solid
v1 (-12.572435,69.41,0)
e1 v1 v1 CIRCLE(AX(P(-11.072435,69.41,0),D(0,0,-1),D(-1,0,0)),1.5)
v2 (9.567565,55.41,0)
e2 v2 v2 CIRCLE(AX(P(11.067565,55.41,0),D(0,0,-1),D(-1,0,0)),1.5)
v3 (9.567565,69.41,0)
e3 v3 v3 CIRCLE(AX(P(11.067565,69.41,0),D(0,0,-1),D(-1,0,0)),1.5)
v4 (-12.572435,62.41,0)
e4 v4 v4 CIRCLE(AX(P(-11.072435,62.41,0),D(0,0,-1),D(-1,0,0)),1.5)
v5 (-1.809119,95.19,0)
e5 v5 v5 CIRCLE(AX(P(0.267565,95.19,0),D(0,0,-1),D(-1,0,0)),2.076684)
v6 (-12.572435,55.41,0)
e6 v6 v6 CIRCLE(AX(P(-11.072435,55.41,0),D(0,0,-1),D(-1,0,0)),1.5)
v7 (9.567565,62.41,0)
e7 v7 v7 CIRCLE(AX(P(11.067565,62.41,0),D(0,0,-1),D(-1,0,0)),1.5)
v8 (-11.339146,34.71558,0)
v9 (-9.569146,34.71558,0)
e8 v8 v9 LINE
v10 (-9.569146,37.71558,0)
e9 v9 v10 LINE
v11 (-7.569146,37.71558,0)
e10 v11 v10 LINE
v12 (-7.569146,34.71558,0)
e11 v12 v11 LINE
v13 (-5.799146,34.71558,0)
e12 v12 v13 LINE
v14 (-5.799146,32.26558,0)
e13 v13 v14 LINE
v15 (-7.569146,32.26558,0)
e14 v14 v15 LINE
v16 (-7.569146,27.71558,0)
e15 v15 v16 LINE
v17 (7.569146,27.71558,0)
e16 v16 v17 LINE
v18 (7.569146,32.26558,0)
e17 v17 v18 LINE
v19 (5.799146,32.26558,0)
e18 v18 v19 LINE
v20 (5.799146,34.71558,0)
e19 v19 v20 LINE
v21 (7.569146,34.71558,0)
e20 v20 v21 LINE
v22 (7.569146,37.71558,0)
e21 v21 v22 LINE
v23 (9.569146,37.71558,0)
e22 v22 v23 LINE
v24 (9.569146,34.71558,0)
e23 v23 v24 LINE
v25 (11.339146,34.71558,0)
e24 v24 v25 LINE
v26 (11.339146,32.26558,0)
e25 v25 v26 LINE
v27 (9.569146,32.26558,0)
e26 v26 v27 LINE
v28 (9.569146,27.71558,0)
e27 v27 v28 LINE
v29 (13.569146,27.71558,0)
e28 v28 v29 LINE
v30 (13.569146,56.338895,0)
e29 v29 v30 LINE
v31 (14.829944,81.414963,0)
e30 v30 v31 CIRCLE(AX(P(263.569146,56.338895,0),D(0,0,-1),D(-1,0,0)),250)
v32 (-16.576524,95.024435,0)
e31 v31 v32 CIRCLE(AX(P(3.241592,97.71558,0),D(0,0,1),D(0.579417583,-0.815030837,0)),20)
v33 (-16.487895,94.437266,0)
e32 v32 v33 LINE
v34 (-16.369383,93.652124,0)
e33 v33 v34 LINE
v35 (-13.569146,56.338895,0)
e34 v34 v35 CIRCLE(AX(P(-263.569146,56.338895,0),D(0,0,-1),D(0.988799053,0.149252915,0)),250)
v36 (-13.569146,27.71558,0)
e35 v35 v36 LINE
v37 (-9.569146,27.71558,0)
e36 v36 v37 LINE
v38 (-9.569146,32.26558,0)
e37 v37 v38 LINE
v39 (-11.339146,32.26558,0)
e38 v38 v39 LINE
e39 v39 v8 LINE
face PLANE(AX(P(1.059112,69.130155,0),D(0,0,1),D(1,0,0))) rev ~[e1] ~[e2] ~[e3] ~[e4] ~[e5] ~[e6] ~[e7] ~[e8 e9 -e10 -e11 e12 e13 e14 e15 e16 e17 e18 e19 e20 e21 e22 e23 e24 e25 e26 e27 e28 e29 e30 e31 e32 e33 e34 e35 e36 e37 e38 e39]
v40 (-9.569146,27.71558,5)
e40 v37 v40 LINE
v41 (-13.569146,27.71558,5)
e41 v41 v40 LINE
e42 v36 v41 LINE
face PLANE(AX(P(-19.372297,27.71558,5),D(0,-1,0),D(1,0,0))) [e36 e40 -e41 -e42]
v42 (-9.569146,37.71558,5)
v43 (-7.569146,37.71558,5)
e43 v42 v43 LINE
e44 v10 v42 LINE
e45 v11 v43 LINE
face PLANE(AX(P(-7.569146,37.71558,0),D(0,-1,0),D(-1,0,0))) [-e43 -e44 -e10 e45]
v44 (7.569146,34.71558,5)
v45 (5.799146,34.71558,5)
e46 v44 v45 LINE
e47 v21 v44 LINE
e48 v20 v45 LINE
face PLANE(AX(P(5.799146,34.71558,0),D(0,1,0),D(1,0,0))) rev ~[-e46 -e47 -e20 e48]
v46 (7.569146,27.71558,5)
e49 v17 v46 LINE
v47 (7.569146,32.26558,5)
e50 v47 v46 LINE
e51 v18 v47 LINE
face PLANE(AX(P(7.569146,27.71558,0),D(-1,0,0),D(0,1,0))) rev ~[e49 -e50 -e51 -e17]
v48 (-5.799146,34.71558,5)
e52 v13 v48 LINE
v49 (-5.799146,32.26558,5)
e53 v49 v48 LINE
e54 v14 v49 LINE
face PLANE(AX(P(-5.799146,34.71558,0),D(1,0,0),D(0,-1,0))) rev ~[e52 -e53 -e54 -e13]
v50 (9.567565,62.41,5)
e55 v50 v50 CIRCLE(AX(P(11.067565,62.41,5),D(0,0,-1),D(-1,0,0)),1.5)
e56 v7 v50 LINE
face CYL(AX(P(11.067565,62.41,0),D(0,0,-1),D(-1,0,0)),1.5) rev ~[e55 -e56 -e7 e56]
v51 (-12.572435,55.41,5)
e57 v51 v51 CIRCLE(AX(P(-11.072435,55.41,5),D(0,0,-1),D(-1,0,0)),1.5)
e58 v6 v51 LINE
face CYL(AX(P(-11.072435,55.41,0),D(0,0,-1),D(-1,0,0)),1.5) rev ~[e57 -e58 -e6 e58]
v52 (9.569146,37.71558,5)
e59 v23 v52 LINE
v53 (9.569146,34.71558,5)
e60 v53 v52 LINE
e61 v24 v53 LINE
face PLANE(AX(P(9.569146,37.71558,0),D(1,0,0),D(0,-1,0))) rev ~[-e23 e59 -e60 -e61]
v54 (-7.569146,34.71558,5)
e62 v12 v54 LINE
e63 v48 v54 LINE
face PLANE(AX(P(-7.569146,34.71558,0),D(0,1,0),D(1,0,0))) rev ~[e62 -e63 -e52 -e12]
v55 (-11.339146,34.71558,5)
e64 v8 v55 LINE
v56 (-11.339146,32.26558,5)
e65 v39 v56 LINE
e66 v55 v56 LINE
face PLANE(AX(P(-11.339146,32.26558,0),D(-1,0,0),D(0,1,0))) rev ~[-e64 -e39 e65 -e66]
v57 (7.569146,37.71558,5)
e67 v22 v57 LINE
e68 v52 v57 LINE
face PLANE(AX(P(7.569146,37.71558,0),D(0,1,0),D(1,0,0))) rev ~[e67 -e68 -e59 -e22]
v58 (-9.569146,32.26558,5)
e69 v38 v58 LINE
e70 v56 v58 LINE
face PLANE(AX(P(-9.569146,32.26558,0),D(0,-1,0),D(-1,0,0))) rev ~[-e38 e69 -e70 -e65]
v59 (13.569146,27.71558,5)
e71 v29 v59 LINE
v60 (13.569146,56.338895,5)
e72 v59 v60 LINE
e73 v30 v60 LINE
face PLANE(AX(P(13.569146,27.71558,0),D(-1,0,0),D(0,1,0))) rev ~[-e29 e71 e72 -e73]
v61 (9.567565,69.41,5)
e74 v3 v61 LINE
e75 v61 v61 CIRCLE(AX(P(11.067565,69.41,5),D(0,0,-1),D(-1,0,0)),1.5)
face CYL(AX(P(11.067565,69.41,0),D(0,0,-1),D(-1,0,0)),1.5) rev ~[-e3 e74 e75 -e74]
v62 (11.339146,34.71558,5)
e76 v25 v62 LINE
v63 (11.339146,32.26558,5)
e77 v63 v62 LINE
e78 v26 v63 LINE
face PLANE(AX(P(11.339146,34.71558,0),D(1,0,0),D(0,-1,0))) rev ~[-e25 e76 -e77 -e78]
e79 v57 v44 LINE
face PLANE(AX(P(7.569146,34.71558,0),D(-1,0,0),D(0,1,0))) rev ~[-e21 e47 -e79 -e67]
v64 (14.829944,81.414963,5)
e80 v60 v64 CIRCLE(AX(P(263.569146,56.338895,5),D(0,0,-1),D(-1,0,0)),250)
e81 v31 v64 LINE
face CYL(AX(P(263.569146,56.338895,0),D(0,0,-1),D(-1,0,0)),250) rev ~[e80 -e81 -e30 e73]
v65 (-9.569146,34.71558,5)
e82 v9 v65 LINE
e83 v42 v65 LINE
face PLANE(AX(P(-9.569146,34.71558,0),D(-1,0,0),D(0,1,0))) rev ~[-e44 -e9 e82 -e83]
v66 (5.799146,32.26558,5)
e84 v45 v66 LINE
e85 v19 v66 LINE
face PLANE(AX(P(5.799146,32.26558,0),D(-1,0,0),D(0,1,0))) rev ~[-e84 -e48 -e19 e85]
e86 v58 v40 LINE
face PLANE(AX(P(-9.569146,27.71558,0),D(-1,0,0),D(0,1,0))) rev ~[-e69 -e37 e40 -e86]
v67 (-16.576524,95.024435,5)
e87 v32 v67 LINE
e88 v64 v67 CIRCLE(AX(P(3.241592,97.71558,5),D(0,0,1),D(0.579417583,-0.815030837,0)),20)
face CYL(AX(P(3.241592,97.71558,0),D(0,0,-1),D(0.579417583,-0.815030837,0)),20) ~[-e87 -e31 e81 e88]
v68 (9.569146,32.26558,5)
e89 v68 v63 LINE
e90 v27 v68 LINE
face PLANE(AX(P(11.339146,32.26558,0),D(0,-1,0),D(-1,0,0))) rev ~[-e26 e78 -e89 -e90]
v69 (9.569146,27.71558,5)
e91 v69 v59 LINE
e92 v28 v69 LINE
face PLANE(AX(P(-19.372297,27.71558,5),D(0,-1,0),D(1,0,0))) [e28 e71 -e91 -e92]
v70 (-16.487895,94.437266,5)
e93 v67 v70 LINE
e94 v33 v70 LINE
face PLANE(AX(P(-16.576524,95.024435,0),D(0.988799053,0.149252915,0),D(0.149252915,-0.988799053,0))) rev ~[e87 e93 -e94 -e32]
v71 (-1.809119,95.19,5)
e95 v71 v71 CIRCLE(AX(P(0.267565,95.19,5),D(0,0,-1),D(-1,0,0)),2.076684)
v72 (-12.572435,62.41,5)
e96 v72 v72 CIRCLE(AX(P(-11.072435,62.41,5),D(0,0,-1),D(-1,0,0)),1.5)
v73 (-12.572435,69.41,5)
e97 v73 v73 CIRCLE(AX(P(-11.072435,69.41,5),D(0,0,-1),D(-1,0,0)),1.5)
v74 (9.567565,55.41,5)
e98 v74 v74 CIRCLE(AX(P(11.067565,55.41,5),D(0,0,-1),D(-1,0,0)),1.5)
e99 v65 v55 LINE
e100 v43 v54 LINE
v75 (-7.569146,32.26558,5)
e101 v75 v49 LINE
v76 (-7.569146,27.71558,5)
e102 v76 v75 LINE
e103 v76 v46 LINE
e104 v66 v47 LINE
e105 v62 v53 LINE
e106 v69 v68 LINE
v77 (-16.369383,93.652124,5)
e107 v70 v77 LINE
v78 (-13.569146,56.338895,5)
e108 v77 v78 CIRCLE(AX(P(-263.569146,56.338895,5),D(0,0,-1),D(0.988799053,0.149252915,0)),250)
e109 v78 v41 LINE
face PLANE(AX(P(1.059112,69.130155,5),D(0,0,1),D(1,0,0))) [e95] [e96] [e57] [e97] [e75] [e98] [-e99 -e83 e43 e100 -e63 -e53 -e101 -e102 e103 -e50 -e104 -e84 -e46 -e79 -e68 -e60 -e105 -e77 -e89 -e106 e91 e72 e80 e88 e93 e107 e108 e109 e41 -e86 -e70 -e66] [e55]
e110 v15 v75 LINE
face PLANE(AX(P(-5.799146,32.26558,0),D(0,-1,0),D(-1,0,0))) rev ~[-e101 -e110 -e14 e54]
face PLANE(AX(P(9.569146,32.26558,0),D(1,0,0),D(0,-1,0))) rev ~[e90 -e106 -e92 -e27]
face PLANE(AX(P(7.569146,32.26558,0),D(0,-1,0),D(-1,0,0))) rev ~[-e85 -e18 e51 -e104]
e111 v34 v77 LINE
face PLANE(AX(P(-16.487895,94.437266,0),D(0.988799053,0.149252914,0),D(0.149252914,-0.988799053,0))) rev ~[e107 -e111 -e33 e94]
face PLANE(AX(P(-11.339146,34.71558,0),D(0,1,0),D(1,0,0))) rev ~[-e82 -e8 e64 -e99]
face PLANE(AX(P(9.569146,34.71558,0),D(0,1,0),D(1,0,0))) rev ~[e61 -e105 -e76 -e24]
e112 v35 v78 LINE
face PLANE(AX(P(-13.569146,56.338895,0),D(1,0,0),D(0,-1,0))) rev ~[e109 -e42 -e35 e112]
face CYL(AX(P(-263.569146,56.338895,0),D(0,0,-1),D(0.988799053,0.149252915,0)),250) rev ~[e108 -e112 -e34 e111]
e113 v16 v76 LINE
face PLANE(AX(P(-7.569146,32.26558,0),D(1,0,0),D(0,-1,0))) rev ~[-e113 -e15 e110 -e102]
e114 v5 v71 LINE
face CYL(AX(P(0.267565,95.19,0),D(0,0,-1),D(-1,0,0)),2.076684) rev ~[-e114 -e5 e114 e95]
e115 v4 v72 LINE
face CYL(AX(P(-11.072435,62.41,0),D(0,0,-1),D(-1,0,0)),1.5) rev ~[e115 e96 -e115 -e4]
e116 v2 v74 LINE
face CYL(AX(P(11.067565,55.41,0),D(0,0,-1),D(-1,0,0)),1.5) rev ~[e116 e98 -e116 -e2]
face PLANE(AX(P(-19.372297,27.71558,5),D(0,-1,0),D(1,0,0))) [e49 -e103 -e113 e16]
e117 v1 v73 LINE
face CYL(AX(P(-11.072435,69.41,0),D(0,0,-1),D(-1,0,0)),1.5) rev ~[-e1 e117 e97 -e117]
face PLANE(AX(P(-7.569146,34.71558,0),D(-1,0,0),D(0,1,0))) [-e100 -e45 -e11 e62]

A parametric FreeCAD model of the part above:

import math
import FreeCAD as App
import Part
import Sketcher

V = App.Vector

doc = App.newDocument("Part")
body = doc.addObject("PartDesign::Body", "Body")

# Sketch on XY plane
sketch1 = doc.addObject("Sketcher::SketchObject", "Sketch")
body.addObject(sketch1)
sketch1.AttachmentSupport = (doc.XY_Plane, [""])
sketch1.MapMode = "FlatFace"
sketch1.addGeometry([
    Part.LineSegment(V(13.569146, 27.71558, 0), V(13.569146, 56.338895, 0)),  # 0
    Part.ArcOfCircle(Part.Circle(V(263.569146, 56.338895, 0), V(0, 0, 1), 250), math.radians(174.243308), math.radians(180)),  # 1
    Part.ArcOfCircle(Part.Circle(V(3.241592, 97.71558, 0), V(0, 0, 1), 20), math.radians(-54.590411), math.radians(187.733017)),  # 2
    Part.LineSegment(V(-16.576524, 95.024435, 0), V(-16.487895, 94.437266, 0)),  # 3
    Part.LineSegment(V(-16.487895, 94.437266, 0), V(-16.369383, 93.652124, 0)),  # 4
    Part.ArcOfCircle(Part.Circle(V(-263.569146, 56.338895, 0), V(0, 0, 1), 250), math.radians(0), math.radians(8.583634)),  # 5
    Part.LineSegment(V(-13.569146, 56.338895, 0), V(-13.569146, 27.71558, 0)),  # 6
    Part.ArcOfCircle(Part.Circle(V(0, 38.134763, 0), V(0, 0, 1), 17.107925), math.radians(-142.48084), math.radians(-37.51916)),  # 7
], False)
sketch1.addConstraint([
    Sketcher.Constraint("Coincident", 0, 2, 1, 2),
    Sketcher.Constraint("Coincident", 1, 1, 2, 1),
    Sketcher.Constraint("Coincident", 2, 2, 3, 1),
    Sketcher.Constraint("Coincident", 3, 2, 4, 1),
    Sketcher.Constraint("Coincident", 4, 2, 5, 2),
    Sketcher.Constraint("Coincident", 5, 1, 6, 1),
    Sketcher.Constraint("Coincident", 6, 2, 7, 1),
    Sketcher.Constraint("Coincident", 7, 2, 0, 1),
    Sketcher.Constraint("Vertical", 0),
    Sketcher.Constraint("Vertical", 6),
    Sketcher.Constraint("PointOnObject", 7, 3, -2),
    Sketcher.Constraint("Radius", 1, 250.0),
    Sketcher.Constraint("Radius", 2, 20.0),
    Sketcher.Constraint("Radius", 5, 250.0),
    Sketcher.Constraint("Radius", 7, 17.107925),
    Sketcher.Constraint("DistanceY", 7, 3, 1, 1, 43.2802),
    Sketcher.Constraint("Distance", 3, 0.593821),
    Sketcher.Constraint("DistanceY", 0, 1, 0, 2, 28.623315),
    Sketcher.Constraint("DistanceY", 6, 2, 6, 1, 28.623315),
    Sketcher.Constraint("DistanceY", -1, 1, 2, 3, 97.71558),
    Sketcher.Constraint("DistanceY", -1, 1, 6, 2, 27.71558),
    Sketcher.Constraint("DistanceY", -1, 1, 7, 2, 27.71558),
    Sketcher.Constraint("DistanceX", 5, 3, 1, 3, 527.138292),
    Sketcher.Constraint("DistanceY", 1, 3, 1, 1, 25.076068),
    Sketcher.Constraint("DistanceY", 5, 3, 1, 1, 25.076068),
    Sketcher.Constraint("DistanceX", 2, 2, 1, 1, 31.406468),
    Sketcher.Constraint("DistanceX", 2, 2, 3, 2, 0.08863),
    Sketcher.Constraint("DistanceX", 2, 2, 4, 2, 0.207142),
])
pad1 = doc.addObject("PartDesign::Pad", "Pad")
body.addObject(pad1)
pad1.Profile = sketch1
pad1.Length = 5

# Sketch on XY plane
sketch2 = doc.addObject("Sketcher::SketchObject", "Sketch001")
body.addObject(sketch2)
sketch2.AttachmentSupport = (doc.XY_Plane, [""])
sketch2.MapMode = "FlatFace"
sketch2.addGeometry(Part.Circle(V(0.3, 95.2, 0), V(0, 0, 1), 2.1), False)
sketch2.addConstraint([
    Sketcher.Constraint("Diameter", 0, 4.153368),
    Sketcher.Constraint("DistanceY", -1, 1, 0, 3, 95.19),
    Sketcher.Constraint("DistanceX", -1, 1, 0, 3, 0.267565),
])
pocket1 = doc.addObject("PartDesign::Pocket", "Pocket")
body.addObject(pocket1)
pocket1.Profile = sketch2
pocket1.Type = "ThroughAll"
pocket1.Reversed = True

# Sketch on XY plane
sketch3 = doc.addObject("Sketcher::SketchObject", "Sketch002")
body.addObject(sketch3)
sketch3.AttachmentSupport = (doc.XY_Plane, [""])
sketch3.MapMode = "FlatFace"
sketch3.AttachmentOffset = App.Placement(V(0, 0, 5), App.Rotation())
sketch3.addGeometry([
    Part.LineSegment(V(-19, 28, 0), V(-19, 20, 0)),
    Part.LineSegment(V(-19, 20, 0), V(14, 20, 0)),
    Part.LineSegment(V(14, 20, 0), V(14, 28, 0)),
    Part.LineSegment(V(14, 28, 0), V(-19, 28, 0)),
], False)
sketch3.addConstraint([
    Sketcher.Constraint("Coincident", 0, 2, 1, 1),
    Sketcher.Constraint("Coincident", 1, 2, 2, 1),
    Sketcher.Constraint("Coincident", 2, 2, 3, 1),
    Sketcher.Constraint("Coincident", 3, 2, 0, 1),
    Sketcher.Constraint("Vertical", 0),
    Sketcher.Constraint("Horizontal", 1),
    Sketcher.Constraint("Vertical", 2),
    Sketcher.Constraint("Horizontal", 3),
    Sketcher.Constraint("DistanceY", 0, 2, 0, 1, 7.703532),
    Sketcher.Constraint("DistanceX", 1, 1, 1, 2, 32.941443),
    Sketcher.Constraint("DistanceY", -1, 1, 0, 2, 20.012048),
    Sketcher.Constraint("DistanceX", 0, 2, -1, 1, 19.372297),
])
pocket2 = doc.addObject("PartDesign::Pocket", "Pocket001")
body.addObject(pocket2)
pocket2.Profile = sketch3
pocket2.Type = "ThroughAll"

# Sketch on XY plane
sketch4 = doc.addObject("Sketcher::SketchObject", "Sketch003")
body.addObject(sketch4)
sketch4.AttachmentSupport = (doc.XY_Plane, [""])
sketch4.MapMode = "FlatFace"
sketch4.addGeometry([
    Part.Circle(V(-11.1, 69.4, 0), V(0, 0, 1), 1.5),  # 0
    Part.Circle(V(-11.1, 62.4, 0), V(0, 0, 1), 1.5),  # 1
    Part.Circle(V(-11.1, 55.4, 0), V(0, 0, 1), 1.5),  # 2
    Part.Circle(V(11.1, 69.4, 0), V(0, 0, 1), 1.5),  # 3
    Part.Circle(V(11.1, 62.4, 0), V(0, 0, 1), 1.5),  # 4
    Part.Circle(V(11.1, 55.4, 0), V(0, 0, 1), 1.5),  # 5
], False)
sketch4.addConstraint([
    Sketcher.Constraint("Equal", 0, 1),
    Sketcher.Constraint("Equal", 1, 2),
    Sketcher.Constraint("Equal", 2, 3),
    Sketcher.Constraint("Equal", 3, 4),
    Sketcher.Constraint("Equal", 4, 5),
    Sketcher.Constraint("Horizontal", 0, 3, 3, 3),
    Sketcher.Constraint("Horizontal", 1, 3, 4, 3),
    Sketcher.Constraint("Horizontal", 2, 3, 5, 3),
    Sketcher.Constraint("Vertical", 0, 3, 1, 3),
    Sketcher.Constraint("Vertical", 1, 3, 2, 3),
    Sketcher.Constraint("Vertical", 3, 3, 4, 3),
    Sketcher.Constraint("Vertical", 4, 3, 5, 3),
    Sketcher.Constraint("Diameter", 0, 3.0),
    Sketcher.Constraint("DistanceY", 1, 3, 0, 3, 7.0),
    Sketcher.Constraint("DistanceY", 2, 3, 1, 3, 7.0),
    Sketcher.Constraint("DistanceY", -1, 1, 0, 3, 69.41),
    Sketcher.Constraint("DistanceX", 0, 3, 3, 3, 22.14),
    Sketcher.Constraint("DistanceX", 0, 3, -1, 1, 11.072435),
])
pocket3 = doc.addObject("PartDesign::Pocket", "Pocket002")
body.addObject(pocket3)
pocket3.Profile = sketch4
pocket3.Type = "ThroughAll"
pocket3.Reversed = True

# Sketch on XY plane
sketch5 = doc.addObject("Sketcher::SketchObject", "Sketch004")
body.addObject(sketch5)
sketch5.AttachmentSupport = (doc.XY_Plane, [""])
sketch5.MapMode = "FlatFace"
sketch5.addGeometry([
    Part.LineSegment(V(-7.6, 27.7, 0), V(-9.6, 27.7, 0)),  # 0
    Part.LineSegment(V(-9.6, 27.7, 0), V(-9.6, 32.3, 0)),  # 1
    Part.LineSegment(V(-9.6, 32.3, 0), V(-11.3, 32.3, 0)),  # 2
    Part.LineSegment(V(-11.3, 32.3, 0), V(-11.3, 34.7, 0)),  # 3
    Part.LineSegment(V(-11.3, 34.7, 0), V(-9.6, 34.7, 0)),  # 4
    Part.LineSegment(V(-9.6, 34.7, 0), V(-9.6, 37.7, 0)),  # 5
    Part.LineSegment(V(-9.6, 37.7, 0), V(-7.6, 37.7, 0)),  # 6
    Part.LineSegment(V(-7.6, 37.7, 0), V(-7.6, 34.7, 0)),  # 7
    Part.LineSegment(V(-7.6, 34.7, 0), V(-5.8, 34.7, 0)),  # 8
    Part.LineSegment(V(-5.8, 34.7, 0), V(-5.8, 32.3, 0)),  # 9
    Part.LineSegment(V(-5.8, 32.3, 0), V(-7.6, 32.3, 0)),  # 10
    Part.LineSegment(V(-7.6, 32.3, 0), V(-7.6, 27.7, 0)),  # 11
    Part.LineSegment(V(9.6, 27.7, 0), V(7.6, 27.7, 0)),  # 12
    Part.LineSegment(V(7.6, 27.7, 0), V(7.6, 32.3, 0)),  # 13
    Part.LineSegment(V(7.6, 32.3, 0), V(5.8, 32.3, 0)),  # 14
    Part.LineSegment(V(5.8, 32.3, 0), V(5.8, 34.7, 0)),  # 15
    Part.LineSegment(V(5.8, 34.7, 0), V(7.6, 34.7, 0)),  # 16
    Part.LineSegment(V(7.6, 34.7, 0), V(7.6, 37.7, 0)),  # 17
    Part.LineSegment(V(7.6, 37.7, 0), V(9.6, 37.7, 0)),  # 18
    Part.LineSegment(V(9.6, 37.7, 0), V(9.6, 34.7, 0)),  # 19
    Part.LineSegment(V(9.6, 34.7, 0), V(11.3, 34.7, 0)),  # 20
    Part.LineSegment(V(11.3, 34.7, 0), V(11.3, 32.3, 0)),  # 21
    Part.LineSegment(V(11.3, 32.3, 0), V(9.6, 32.3, 0)),  # 22
    Part.LineSegment(V(9.6, 32.3, 0), V(9.6, 27.7, 0)),  # 23
], False)
sketch5.addConstraint([
    Sketcher.Constraint("Coincident", 0, 2, 1, 1),
    Sketcher.Constraint("Coincident", 1, 2, 2, 1),
    Sketcher.Constraint("Coincident", 2, 2, 3, 1),
    Sketcher.Constraint("Coincident", 3, 2, 4, 1),
    Sketcher.Constraint("Coincident", 4, 2, 5, 1),
    Sketcher.Constraint("Coincident", 5, 2, 6, 1),
    Sketcher.Constraint("Coincident", 6, 2, 7, 1),
    Sketcher.Constraint("Coincident", 7, 2, 8, 1),
    Sketcher.Constraint("Coincident", 8, 2, 9, 1),
    Sketcher.Constraint("Coincident", 9, 2, 10, 1),
    Sketcher.Constraint("Coincident", 10, 2, 11, 1),
    Sketcher.Constraint("Coincident", 11, 2, 0, 1),
    Sketcher.Constraint("Coincident", 12, 2, 13, 1),
    Sketcher.Constraint("Coincident", 13, 2, 14, 1),
    Sketcher.Constraint("Coincident", 14, 2, 15, 1),
    Sketcher.Constraint("Coincident", 15, 2, 16, 1),
    Sketcher.Constraint("Coincident", 16, 2, 17, 1),
    Sketcher.Constraint("Coincident", 17, 2, 18, 1),
    Sketcher.Constraint("Coincident", 18, 2, 19, 1),
    Sketcher.Constraint("Coincident", 19, 2, 20, 1),
    Sketcher.Constraint("Coincident", 20, 2, 21, 1),
    Sketcher.Constraint("Coincident", 21, 2, 22, 1),
    Sketcher.Constraint("Coincident", 22, 2, 23, 1),
    Sketcher.Constraint("Coincident", 23, 2, 12, 1),
    Sketcher.Constraint("Horizontal", 0),
    Sketcher.Constraint("Vertical", 1),
    Sketcher.Constraint("Horizontal", 2),
    Sketcher.Constraint("Vertical", 3),
    Sketcher.Constraint("Horizontal", 4),
    Sketcher.Constraint("Vertical", 5),
    Sketcher.Constraint("Horizontal", 6),
    Sketcher.Constraint("Vertical", 7),
    Sketcher.Constraint("Horizontal", 8),
    Sketcher.Constraint("Vertical", 9),
    Sketcher.Constraint("Horizontal", 10),
    Sketcher.Constraint("Vertical", 11),
    Sketcher.Constraint("Horizontal", 12),
    Sketcher.Constraint("Vertical", 13),
    Sketcher.Constraint("Horizontal", 14),
    Sketcher.Constraint("Vertical", 15),
    Sketcher.Constraint("Horizontal", 16),
    Sketcher.Constraint("Vertical", 17),
    Sketcher.Constraint("Horizontal", 18),
    Sketcher.Constraint("Vertical", 19),
    Sketcher.Constraint("Horizontal", 20),
    Sketcher.Constraint("Vertical", 21),
    Sketcher.Constraint("Horizontal", 22),
    Sketcher.Constraint("Vertical", 23),
    Sketcher.Constraint("Symmetric", 11, 2, 12, 2, -2),
    Sketcher.Constraint("Symmetric", 9, 2, 14, 2, -2),
    Sketcher.Constraint("Symmetric", 7, 2, 16, 2, -2),
    Sketcher.Constraint("Symmetric", 5, 2, 18, 2, -2),
    Sketcher.Constraint("Symmetric", 3, 2, 20, 2, -2),
    Sketcher.Constraint("Symmetric", 1, 2, 22, 2, -2),
    Sketcher.Constraint("Horizontal", 4, 2, 7, 2),
    Sketcher.Constraint("Horizontal", 2, 2, 9, 2),
    Sketcher.Constraint("Vertical", 1, 2, 4, 2),
    Sketcher.Constraint("Vertical", 7, 2, 10, 2),
    Sketcher.Constraint("Equal", 4, 8),
    Sketcher.Constraint("DistanceX", 0, 2, 0, 1, 2.0),
    Sketcher.Constraint("DistanceY", 5, 1, 5, 2, 3.0),
    Sketcher.Constraint("DistanceY", 0, 2, 3, 2, 7.0),
    Sketcher.Constraint("DistanceX", 2, 2, 2, 1, 1.77),
    Sketcher.Constraint("DistanceY", 1, 1, 1, 2, 4.55),
    Sketcher.Constraint("DistanceY", -1, 1, 0, 2, 27.71558),
    Sketcher.Constraint("DistanceX", 0, 2, -1, 1, 9.569146),
])
pocket4 = doc.addObject("PartDesign::Pocket", "Pocket003")
body.addObject(pocket4)
pocket4.Profile = sketch5
pocket4.Type = "ThroughAll"
pocket4.Reversed = True

doc.recompute()
